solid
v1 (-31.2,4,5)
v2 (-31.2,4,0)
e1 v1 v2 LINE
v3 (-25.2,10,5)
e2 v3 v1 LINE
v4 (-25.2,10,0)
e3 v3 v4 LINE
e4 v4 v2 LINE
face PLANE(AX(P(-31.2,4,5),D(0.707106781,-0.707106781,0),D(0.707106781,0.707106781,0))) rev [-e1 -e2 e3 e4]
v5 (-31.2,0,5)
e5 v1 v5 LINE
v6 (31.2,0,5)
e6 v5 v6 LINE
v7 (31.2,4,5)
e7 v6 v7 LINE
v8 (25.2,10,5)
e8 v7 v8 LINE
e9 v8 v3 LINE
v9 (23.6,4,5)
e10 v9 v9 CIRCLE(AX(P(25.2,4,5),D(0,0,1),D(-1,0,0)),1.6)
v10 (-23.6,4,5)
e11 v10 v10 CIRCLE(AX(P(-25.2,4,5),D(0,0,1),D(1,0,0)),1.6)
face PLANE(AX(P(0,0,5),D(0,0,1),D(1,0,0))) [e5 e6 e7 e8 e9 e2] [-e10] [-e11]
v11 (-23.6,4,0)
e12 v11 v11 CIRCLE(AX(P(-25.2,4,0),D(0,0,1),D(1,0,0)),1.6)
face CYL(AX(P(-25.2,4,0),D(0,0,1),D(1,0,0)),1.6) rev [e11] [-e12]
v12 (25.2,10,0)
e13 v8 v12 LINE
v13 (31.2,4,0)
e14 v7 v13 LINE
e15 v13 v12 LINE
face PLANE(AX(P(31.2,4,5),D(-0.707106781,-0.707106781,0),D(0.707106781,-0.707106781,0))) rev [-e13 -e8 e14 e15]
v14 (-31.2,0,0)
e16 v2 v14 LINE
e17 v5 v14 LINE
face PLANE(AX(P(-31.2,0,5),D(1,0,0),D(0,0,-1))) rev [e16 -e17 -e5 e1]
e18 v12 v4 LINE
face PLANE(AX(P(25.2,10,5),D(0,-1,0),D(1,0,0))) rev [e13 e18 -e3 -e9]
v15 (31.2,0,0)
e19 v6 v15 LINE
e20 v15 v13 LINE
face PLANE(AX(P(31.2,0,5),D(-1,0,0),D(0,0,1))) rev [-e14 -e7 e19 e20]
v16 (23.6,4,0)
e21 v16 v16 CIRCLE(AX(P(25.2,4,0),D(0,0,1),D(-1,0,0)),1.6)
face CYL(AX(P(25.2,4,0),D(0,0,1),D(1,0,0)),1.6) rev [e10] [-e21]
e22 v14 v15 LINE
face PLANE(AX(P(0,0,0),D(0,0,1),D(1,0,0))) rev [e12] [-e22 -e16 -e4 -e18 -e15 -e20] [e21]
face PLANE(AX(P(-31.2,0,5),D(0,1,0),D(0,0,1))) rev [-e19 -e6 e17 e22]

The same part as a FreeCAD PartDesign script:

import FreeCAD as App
import Part
import Sketcher
from FreeCAD import Vector


def add_polygon(sketch, points):
    """Adds a closed chain of lines whose ends are joined by coincident constraints."""
    first, n = sketch.GeometryCount, len(points)
    for a, b in zip(points, points[1:] + points[:1]):
        sketch.addGeometry(Part.LineSegment(App.Vector(*a, 0), App.Vector(*b, 0)), False)
    for i in range(n):
        sketch.addConstraint(Sketcher.Constraint("Coincident", first + i, 2, first + (i + 1) % n, 1))

doc = App.newDocument("Part")
body = doc.addObject("PartDesign::Body", "Body")

# Sketch on XY plane
sketch1 = body.newObject("Sketcher::SketchObject", "Sketch")
sketch1.AttachmentSupport = (doc.getObject("XY_Plane"), [""])
sketch1.MapMode = "FlatFace"
add_polygon(sketch1, [(-31.2, 0), (31.2, 0), (31.2, 4), (25.2, 10), (-25.2, 10), (-31.2, 4)])  # lines 0-5
sketch1.addConstraint([
    Sketcher.Constraint("Horizontal", 0),
    Sketcher.Constraint("Vertical", 1),
    Sketcher.Constraint("Horizontal", 3),
    Sketcher.Constraint("Vertical", 5),
    Sketcher.Constraint("Symmetric", 0, 2, 5, 2, -1, 1),
    Sketcher.Constraint("Perpendicular", 2, 4),
    Sketcher.Constraint("Horizontal", 1, 2, 4, 2),
    Sketcher.Constraint("Equal", 2, 4),
    Sketcher.Constraint("DistanceY", 1, 1, 1, 2, 4.0),
    Sketcher.Constraint("DistanceX", 0, 1, 0, 2, 62.4),
    Sketcher.Constraint("DistanceX", 3, 2, 3, 1, 50.4),
])
pad1 = body.newObject("PartDesign::Pad", "Pad")
pad1.Profile = sketch1
pad1.Length = 5

# Sketch on XY plane
sketch2 = body.newObject("Sketcher::SketchObject", "Sketch001")
sketch2.AttachmentSupport = (doc.getObject("XY_Plane"), [""])
sketch2.MapMode = "FlatFace"
sketch2.AttachmentOffset = App.Placement(Vector(0, 0, 5), App.Rotation())
sketch2.addGeometry([
    Part.Circle(Vector(-25.2, 4, 0), Vector(0, 0, 1), 1.6),
    Part.Circle(Vector(25.2, 4, 0), Vector(0, 0, 1), 1.6),
], False)
sketch2.addConstraint([
    Sketcher.Constraint("Equal", 0, 1),
    Sketcher.Constraint("Symmetric", 0, 3, 1, 3, -2),
    Sketcher.Constraint("Diameter", 0, 3.2),
    Sketcher.Constraint("DistanceY", -1, 1, 0, 3, 4.0),
    Sketcher.Constraint("DistanceX", 0, 3, -1, 1, 25.2),
])
pocket1 = body.newObject("PartDesign::Pocket", "Pocket")
pocket1.Profile = sketch2
pocket1.Type = "ThroughAll"

doc.recompute()
